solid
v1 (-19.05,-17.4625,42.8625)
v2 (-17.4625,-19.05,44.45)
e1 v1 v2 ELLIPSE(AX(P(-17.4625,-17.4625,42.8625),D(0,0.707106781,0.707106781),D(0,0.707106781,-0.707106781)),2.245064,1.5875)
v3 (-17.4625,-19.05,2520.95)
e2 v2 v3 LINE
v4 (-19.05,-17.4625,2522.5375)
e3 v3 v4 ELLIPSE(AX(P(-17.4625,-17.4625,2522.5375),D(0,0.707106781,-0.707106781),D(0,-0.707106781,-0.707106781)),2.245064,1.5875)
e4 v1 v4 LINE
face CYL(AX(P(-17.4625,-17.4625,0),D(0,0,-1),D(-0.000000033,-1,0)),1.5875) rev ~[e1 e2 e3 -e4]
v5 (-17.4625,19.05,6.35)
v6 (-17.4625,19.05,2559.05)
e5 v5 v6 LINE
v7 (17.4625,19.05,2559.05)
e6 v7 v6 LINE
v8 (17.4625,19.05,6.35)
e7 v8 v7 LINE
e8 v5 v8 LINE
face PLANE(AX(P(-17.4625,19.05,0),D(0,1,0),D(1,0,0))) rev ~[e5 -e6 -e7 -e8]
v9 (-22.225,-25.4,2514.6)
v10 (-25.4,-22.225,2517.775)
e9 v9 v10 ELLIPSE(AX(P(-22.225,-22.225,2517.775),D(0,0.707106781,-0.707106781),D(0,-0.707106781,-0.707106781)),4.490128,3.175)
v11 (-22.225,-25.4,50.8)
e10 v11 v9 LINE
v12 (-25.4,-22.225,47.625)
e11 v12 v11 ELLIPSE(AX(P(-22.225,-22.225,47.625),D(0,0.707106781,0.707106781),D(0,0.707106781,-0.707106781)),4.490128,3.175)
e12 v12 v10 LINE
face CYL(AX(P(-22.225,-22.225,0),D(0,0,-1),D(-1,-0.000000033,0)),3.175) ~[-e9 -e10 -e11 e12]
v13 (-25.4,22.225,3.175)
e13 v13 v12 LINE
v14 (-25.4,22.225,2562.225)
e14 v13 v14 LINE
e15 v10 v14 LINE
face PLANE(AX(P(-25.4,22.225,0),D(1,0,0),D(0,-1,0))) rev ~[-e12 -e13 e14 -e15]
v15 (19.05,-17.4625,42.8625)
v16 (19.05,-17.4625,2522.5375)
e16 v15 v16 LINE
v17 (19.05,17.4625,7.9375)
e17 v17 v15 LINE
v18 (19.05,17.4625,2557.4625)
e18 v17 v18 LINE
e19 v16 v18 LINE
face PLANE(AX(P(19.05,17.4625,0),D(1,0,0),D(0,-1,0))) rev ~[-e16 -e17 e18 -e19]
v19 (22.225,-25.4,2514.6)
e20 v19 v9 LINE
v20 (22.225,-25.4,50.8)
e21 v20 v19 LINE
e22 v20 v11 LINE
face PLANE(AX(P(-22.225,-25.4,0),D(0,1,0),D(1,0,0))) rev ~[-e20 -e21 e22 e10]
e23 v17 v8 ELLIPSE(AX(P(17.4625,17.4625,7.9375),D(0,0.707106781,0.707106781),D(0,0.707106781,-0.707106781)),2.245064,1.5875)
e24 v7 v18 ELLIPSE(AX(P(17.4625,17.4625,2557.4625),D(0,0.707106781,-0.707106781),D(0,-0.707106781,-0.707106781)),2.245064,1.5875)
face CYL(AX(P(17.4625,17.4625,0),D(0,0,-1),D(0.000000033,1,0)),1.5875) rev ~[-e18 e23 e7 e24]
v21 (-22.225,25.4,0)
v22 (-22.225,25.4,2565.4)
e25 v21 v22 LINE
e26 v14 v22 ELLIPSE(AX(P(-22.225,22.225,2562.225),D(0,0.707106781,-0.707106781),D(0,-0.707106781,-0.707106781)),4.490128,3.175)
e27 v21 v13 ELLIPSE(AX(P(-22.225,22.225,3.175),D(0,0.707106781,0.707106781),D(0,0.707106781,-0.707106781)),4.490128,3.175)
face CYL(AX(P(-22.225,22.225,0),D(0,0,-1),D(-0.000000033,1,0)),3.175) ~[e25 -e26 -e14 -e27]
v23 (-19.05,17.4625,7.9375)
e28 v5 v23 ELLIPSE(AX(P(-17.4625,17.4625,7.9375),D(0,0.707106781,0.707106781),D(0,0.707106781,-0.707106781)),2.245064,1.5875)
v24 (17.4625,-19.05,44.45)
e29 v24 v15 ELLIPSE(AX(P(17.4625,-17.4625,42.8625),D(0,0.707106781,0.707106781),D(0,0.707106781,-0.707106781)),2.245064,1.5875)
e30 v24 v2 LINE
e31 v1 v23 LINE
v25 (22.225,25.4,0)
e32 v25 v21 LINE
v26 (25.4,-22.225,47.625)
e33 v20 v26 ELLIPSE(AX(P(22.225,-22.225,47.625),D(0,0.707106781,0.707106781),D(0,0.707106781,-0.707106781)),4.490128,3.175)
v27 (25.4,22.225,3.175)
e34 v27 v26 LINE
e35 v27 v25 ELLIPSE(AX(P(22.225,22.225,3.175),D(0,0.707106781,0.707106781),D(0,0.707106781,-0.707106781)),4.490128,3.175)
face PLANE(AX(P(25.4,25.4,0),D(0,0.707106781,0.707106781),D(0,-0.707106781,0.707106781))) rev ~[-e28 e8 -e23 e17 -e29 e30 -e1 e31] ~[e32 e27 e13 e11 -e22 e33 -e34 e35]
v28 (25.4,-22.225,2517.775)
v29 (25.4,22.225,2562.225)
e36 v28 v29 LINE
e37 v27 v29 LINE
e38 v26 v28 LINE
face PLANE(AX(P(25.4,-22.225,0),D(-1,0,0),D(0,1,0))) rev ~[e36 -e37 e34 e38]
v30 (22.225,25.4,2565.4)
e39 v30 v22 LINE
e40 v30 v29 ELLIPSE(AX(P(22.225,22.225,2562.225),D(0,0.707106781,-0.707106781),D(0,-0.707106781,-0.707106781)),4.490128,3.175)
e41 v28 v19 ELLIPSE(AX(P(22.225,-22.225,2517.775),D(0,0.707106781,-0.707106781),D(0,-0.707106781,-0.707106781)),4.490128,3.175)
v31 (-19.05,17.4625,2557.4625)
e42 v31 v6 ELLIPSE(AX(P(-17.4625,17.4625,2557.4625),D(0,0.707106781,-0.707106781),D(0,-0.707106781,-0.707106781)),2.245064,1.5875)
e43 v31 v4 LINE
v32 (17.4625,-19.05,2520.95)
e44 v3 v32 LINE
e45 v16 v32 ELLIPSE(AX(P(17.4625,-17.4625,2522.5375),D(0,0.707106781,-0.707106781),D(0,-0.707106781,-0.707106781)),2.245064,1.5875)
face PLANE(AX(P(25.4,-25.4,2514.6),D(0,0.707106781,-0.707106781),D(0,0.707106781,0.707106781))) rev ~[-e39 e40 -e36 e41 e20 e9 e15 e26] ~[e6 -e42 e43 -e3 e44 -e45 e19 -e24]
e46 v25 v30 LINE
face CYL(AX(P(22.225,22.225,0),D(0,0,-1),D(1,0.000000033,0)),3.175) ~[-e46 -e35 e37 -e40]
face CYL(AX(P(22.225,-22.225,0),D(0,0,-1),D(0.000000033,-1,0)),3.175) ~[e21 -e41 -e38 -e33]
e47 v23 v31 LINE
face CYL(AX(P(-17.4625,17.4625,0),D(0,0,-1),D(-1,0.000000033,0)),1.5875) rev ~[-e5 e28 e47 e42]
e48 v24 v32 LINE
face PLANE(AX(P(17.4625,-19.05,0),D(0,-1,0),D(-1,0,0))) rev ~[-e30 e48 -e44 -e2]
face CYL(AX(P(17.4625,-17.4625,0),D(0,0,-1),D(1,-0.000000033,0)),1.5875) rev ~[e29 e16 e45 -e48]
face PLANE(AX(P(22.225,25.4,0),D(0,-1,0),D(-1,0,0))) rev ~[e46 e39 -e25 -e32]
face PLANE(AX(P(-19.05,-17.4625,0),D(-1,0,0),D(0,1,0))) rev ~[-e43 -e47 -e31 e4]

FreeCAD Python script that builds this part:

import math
import FreeCAD as App
import Part
import Sketcher
from FreeCAD import Vector
Q = App.Units.Quantity

doc = App.newDocument("Part")
body = doc.addObject("PartDesign::Body", "Body")

# Sketch on XY plane
sketch1 = body.newObject("Sketcher::SketchObject", "Sketch")
sketch1.AttachmentSupport = (doc.getObject("XY_Plane"), [""])
sketch1.MapMode = "FlatFace"
sketch1.addGeometry(Part.LineSegment(Vector(22.225, 25.4, 0), Vector(-22.225, 25.4, 0)), False)
sketch1.addGeometry(Part.ArcOfCircle(Part.Circle(Vector(-22.225, 22.225, 0), Vector(0, 0, 1), 3.175), math.radians(90.000002), math.radians(179.999998)), False)
sketch1.addGeometry(Part.LineSegment(Vector(-25.4, 22.225, 0), Vector(-25.4, -22.225, 0)), False)
sketch1.addGeometry(Part.ArcOfCircle(Part.Circle(Vector(-22.225, -22.225, 0), Vector(0, 0, 1), 3.175), math.radians(-179.999998), math.radians(-90.000002)), False)
sketch1.addGeometry(Part.LineSegment(Vector(-22.225, -25.4, 0), Vector(22.225, -25.4, 0)), False)
sketch1.addGeometry(Part.ArcOfCircle(Part.Circle(Vector(22.225, -22.225, 0), Vector(0, 0, 1), 3.175), math.radians(-89.999998), math.radians(-0.000002)), False)
sketch1.addGeometry(Part.LineSegment(Vector(25.4, -22.225, 0), Vector(25.4, 22.225, 0)), False)
sketch1.addGeometry(Part.ArcOfCircle(Part.Circle(Vector(22.225, 22.225, 0), Vector(0, 0, 1), 3.175), math.radians(0.000002), math.radians(89.999998)), False)
sketch1.addGeometry(Part.LineSegment(Vector(-19.05, -17.4625, 0), Vector(-19.05, 17.4625, 0)), False)
sketch1.addGeometry(Part.ArcOfCircle(Part.Circle(Vector(-17.4625, 17.4625, 0), Vector(0, 0, 1), 1.5875), math.radians(90.000002), math.radians(179.999998)), False)
sketch1.addGeometry(Part.LineSegment(Vector(-17.4625, 19.05, 0), Vector(17.4625, 19.05, 0)), False)
sketch1.addGeometry(Part.ArcOfCircle(Part.Circle(Vector(17.4625, 17.4625, 0), Vector(0, 0, 1), 1.5875), math.radians(0.000002), math.radians(89.999998)), False)
sketch1.addGeometry(Part.LineSegment(Vector(19.05, 17.4625, 0), Vector(19.05, -17.4625, 0)), False)
sketch1.addGeometry(Part.ArcOfCircle(Part.Circle(Vector(17.4625, -17.4625, 0), Vector(0, 0, 1), 1.5875), math.radians(-89.999998), math.radians(-0.000002)), False)
sketch1.addGeometry(Part.LineSegment(Vector(17.4625, -19.05, 0), Vector(-17.4625, -19.05, 0)), False)
sketch1.addGeometry(Part.ArcOfCircle(Part.Circle(Vector(-17.4625, -17.4625, 0), Vector(0, 0, 1), 1.5875), math.radians(-179.999998), math.radians(-90.000002)), False)
sketch1.addConstraint(Sketcher.Constraint("Tangent", 0, 2, 1, 1))
sketch1.addConstraint(Sketcher.Constraint("Tangent", 1, 2, 2, 1))
sketch1.addConstraint(Sketcher.Constraint("Tangent", 2, 2, 3, 1))
sketch1.addConstraint(Sketcher.Constraint("Tangent", 3, 2, 4, 1))
sketch1.addConstraint(Sketcher.Constraint("Tangent", 4, 2, 5, 1))
sketch1.addConstraint(Sketcher.Constraint("Tangent", 5, 2, 6, 1))
sketch1.addConstraint(Sketcher.Constraint("Tangent", 6, 2, 7, 1))
sketch1.addConstraint(Sketcher.Constraint("Tangent", 7, 2, 0, 1))
sketch1.addConstraint(Sketcher.Constraint("Tangent", 8, 2, 9, 2))
sketch1.addConstraint(Sketcher.Constraint("Tangent", 9, 1, 10, 1))
sketch1.addConstraint(Sketcher.Constraint("Tangent", 10, 2, 11, 2))
sketch1.addConstraint(Sketcher.Constraint("Tangent", 11, 1, 12, 1))
sketch1.addConstraint(Sketcher.Constraint("Tangent", 12, 2, 13, 2))
sketch1.addConstraint(Sketcher.Constraint("Tangent", 13, 1, 14, 1))
sketch1.addConstraint(Sketcher.Constraint("Tangent", 14, 2, 15, 2))
sketch1.addConstraint(Sketcher.Constraint("Tangent", 15, 1, 8, 1))
sketch1.addConstraint(Sketcher.Constraint("Horizontal", 0))
sketch1.addConstraint(Sketcher.Constraint("Vertical", 2))
sketch1.addConstraint(Sketcher.Constraint("Horizontal", 4))
sketch1.addConstraint(Sketcher.Constraint("Vertical", 6))
sketch1.addConstraint(Sketcher.Constraint("Vertical", 8))
sketch1.addConstraint(Sketcher.Constraint("Horizontal", 10))
sketch1.addConstraint(Sketcher.Constraint("Vertical", 12))
sketch1.addConstraint(Sketcher.Constraint("Horizontal", 14))
sketch1.addConstraint(Sketcher.Constraint("Equal", 1, 3))
sketch1.addConstraint(Sketcher.Constraint("Equal", 3, 5))
sketch1.addConstraint(Sketcher.Constraint("Equal", 5, 7))
sketch1.addConstraint(Sketcher.Constraint("Equal", 9, 11))
sketch1.addConstraint(Sketcher.Constraint("Equal", 11, 13))
sketch1.addConstraint(Sketcher.Constraint("Equal", 13, 15))
sketch1.addConstraint(Sketcher.Constraint("Symmetric", 1, 3, 5, 3, -1, 1))
sketch1.addConstraint(Sketcher.Constraint("Symmetric", 9, 3, 13, 3, -1, 1))
sketch1.addConstraint(Sketcher.Constraint("Equal", 4, 2))
sketch1.addConstraint(Sketcher.Constraint("Equal", 14, 8))
sketch1.addConstraint(Sketcher.Constraint("DistanceY", -1, 1, 0, 2, Q("1 in")))
sketch1.addConstraint(Sketcher.Constraint("Radius", 1, Q("0.125 in")))
sketch1.addConstraint(Sketcher.Constraint("Radius", 9, Q("0.0625 in")))
sketch1.addConstraint(Sketcher.Constraint("DistanceX", 10, 1, 10, 2, Q("1.375 in")))
pad1 = body.newObject("PartDesign::Pad", "Pad")
pad1.Profile = sketch1
pad1.Length = Q("101 in")

# Sketch on YZ plane
sketch2 = body.newObject("Sketcher::SketchObject", "Sketch001")
sketch2.AttachmentSupport = (doc.getObject("YZ_Plane"), [""])
sketch2.MapMode = "FlatFace"
sketch2.AttachmentOffset = App.Placement(Vector(0, 0, 1 * 25.4), App.Rotation())
sketch2.addGeometry(Part.LineSegment(Vector(-25.4, 2514.6, 0), Vector(25.4, 2565.4, 0)), False)
sketch2.addGeometry(Part.LineSegment(Vector(25.4, 2565.4, 0), Vector(-25.4, 2565.4, 0)), False)
sketch2.addGeometry(Part.LineSegment(Vector(-25.4, 2565.4, 0), Vector(-25.4, 2514.6, 0)), False)
sketch2.addGeometry(Part.LineSegment(Vector(-25.4, 0, 0), Vector(25.4, 0, 0)), False)
sketch2.addGeometry(Part.LineSegment(Vector(25.4, 0, 0), Vector(-25.4, 50.8, 0)), False)
sketch2.addGeometry(Part.LineSegment(Vector(-25.4, 50.8, 0), Vector(-25.4, 0, 0)), False)
sketch2.addConstraint(Sketcher.Constraint("Coincident", 0, 2, 1, 1))
sketch2.addConstraint(Sketcher.Constraint("Coincident", 1, 2, 2, 1))
sketch2.addConstraint(Sketcher.Constraint("Coincident", 2, 2, 0, 1))
sketch2.addConstraint(Sketcher.Constraint("Coincident", 3, 2, 4, 1))
sketch2.addConstraint(Sketcher.Constraint("Coincident", 4, 2, 5, 1))
sketch2.addConstraint(Sketcher.Constraint("Coincident", 5, 2, 3, 1))
sketch2.addConstraint(Sketcher.Constraint("Horizontal", 1))
sketch2.addConstraint(Sketcher.Constraint("Vertical", 2))
sketch2.addConstraint(Sketcher.Constraint("Horizontal", 3))
sketch2.addConstraint(Sketcher.Constraint("Vertical", 5))
sketch2.addConstraint(Sketcher.Constraint("Symmetric", 3, 2, 5, 2, -1, 1))
sketch2.addConstraint(Sketcher.Constraint("Perpendicular", 0, 4))
sketch2.addConstraint(Sketcher.Constraint("Vertical", 0, 2, 3, 2))
sketch2.addConstraint(Sketcher.Constraint("Vertical", 2, 2, 4, 2))
sketch2.addConstraint(Sketcher.Constraint("Equal", 3, 2))
sketch2.addConstraint(Sketcher.Constraint("DistanceX", 1, 2, 1, 1, Q("2 in")))
sketch2.addConstraint(Sketcher.Constraint("DistanceY", -1, 1, 0, 2, Q("101 in")))
pocket1 = body.newObject("PartDesign::Pocket", "Pocket")
pocket1.Profile = sketch2
pocket1.Type = "ThroughAll"

doc.recompute()
